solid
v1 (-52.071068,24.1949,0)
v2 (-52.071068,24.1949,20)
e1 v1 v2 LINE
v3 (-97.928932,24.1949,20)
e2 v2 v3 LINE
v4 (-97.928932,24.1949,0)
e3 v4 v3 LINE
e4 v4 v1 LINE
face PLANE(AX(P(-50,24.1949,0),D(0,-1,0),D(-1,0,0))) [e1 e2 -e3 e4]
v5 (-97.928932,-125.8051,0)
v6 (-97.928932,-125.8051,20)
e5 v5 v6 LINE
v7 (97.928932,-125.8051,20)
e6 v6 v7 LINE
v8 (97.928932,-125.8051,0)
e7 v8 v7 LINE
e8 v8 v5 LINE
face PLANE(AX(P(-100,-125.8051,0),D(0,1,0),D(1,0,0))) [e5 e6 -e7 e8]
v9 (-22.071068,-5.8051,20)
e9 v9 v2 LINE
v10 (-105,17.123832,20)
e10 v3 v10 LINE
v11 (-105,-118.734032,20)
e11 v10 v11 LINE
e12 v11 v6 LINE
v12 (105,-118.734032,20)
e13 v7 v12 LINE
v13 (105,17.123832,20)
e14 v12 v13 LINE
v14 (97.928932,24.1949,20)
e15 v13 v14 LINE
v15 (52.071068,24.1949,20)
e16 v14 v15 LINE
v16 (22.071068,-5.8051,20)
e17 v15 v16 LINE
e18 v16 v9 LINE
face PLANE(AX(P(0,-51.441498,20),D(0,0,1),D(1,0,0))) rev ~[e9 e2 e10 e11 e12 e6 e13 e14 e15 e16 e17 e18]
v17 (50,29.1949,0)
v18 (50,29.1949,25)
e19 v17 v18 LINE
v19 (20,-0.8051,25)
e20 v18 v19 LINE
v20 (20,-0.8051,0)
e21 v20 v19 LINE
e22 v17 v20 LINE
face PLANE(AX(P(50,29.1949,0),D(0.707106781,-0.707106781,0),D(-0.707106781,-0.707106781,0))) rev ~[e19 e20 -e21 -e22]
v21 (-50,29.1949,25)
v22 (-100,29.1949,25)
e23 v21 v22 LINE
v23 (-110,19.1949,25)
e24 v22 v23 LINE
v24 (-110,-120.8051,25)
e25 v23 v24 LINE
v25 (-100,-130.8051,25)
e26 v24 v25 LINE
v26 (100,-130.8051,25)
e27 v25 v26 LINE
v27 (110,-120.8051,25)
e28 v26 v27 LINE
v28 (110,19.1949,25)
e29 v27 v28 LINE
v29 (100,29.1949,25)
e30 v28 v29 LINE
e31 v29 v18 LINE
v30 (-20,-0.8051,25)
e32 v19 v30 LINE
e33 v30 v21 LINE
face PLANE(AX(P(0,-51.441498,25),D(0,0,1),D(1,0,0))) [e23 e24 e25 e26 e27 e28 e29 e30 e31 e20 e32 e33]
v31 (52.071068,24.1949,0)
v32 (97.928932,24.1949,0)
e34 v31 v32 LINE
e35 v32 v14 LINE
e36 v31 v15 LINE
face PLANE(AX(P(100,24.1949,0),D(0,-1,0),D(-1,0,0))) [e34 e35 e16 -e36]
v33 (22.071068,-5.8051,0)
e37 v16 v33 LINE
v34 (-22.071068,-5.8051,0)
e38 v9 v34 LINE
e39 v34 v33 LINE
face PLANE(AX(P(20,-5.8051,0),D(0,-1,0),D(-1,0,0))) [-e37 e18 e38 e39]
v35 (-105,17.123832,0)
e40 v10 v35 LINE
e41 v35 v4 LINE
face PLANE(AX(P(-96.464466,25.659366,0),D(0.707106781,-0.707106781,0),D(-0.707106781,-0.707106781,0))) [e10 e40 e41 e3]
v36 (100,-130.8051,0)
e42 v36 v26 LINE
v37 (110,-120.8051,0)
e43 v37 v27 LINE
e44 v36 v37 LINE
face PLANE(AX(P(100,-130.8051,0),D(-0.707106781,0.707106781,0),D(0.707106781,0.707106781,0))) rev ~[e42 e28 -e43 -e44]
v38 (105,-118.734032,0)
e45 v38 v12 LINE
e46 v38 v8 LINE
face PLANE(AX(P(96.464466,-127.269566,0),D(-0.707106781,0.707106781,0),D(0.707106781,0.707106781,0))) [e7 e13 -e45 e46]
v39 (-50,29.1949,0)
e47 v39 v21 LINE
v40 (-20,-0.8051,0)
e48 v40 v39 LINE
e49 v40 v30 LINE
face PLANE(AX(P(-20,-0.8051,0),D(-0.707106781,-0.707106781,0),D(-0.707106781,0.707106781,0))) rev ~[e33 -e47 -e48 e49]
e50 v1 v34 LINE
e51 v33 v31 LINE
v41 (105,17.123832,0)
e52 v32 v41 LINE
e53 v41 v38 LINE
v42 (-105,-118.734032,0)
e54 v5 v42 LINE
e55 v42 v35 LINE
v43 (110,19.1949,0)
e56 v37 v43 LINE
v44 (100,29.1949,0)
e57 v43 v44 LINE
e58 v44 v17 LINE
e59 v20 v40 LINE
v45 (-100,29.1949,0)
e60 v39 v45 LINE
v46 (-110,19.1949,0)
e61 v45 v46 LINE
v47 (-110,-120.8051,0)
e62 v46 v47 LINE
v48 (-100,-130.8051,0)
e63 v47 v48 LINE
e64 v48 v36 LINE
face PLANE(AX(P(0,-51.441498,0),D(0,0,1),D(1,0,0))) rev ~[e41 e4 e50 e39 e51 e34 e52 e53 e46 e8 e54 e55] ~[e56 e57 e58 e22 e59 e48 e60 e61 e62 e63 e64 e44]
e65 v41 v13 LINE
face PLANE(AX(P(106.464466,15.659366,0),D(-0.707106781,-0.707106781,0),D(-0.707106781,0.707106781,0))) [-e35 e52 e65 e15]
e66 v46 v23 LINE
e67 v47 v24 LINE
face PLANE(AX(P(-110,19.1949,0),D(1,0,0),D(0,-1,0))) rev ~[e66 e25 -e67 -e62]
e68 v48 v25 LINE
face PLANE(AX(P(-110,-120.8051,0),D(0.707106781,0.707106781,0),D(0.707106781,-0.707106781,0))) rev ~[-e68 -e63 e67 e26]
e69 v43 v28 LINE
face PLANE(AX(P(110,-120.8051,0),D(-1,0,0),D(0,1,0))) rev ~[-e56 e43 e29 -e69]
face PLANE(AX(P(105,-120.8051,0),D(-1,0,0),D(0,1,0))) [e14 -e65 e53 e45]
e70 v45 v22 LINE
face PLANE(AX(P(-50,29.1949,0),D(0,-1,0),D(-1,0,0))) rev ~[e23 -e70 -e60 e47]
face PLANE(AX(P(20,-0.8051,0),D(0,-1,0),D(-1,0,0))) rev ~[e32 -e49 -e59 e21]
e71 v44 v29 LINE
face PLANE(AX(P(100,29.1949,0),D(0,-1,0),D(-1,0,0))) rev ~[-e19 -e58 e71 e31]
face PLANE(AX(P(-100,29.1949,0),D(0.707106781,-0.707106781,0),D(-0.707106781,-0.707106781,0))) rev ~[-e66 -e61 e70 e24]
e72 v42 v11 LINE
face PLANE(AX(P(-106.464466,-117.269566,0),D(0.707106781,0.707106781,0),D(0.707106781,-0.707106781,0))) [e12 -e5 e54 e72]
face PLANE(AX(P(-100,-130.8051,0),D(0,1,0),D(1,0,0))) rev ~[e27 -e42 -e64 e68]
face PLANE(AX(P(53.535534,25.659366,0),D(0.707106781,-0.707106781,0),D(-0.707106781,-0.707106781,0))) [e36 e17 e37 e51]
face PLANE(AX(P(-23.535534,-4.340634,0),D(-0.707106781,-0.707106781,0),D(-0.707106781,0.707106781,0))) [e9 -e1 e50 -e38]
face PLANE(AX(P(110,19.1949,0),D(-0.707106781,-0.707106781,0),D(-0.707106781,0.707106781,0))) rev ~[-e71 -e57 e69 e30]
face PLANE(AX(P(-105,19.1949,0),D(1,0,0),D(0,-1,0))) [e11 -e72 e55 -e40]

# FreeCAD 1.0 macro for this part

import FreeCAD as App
import Part
import Sketcher


def faces_at(feature, points):
    """Names of the faces that lie closest to the given points."""
    faces = feature.Shape.Faces
    near = lambda p: min(range(len(faces)), key=lambda i: faces[i].distToShape(Part.Vertex(*p))[0])
    return sorted({f"Face{near(p) + 1}" for p in points})

doc = App.newDocument("Part")
body = doc.addObject("PartDesign::Body", "Body")

# Sketch on XY plane
sketch1 = body.newObject("Sketcher::SketchObject", "Sketch")
sketch1.AttachmentSupport = (doc.getObject("XY_Plane"), [""])
sketch1.MapMode = "FlatFace"
sketch1.addGeometry(Part.LineSegment(App.Vector(-100, 29, 0), App.Vector(-110, 19, 0)), False)
sketch1.addGeometry(Part.LineSegment(App.Vector(-110, 19, 0), App.Vector(-110, -121, 0)), False)
sketch1.addGeometry(Part.LineSegment(App.Vector(-110, -121, 0), App.Vector(-100, -131, 0)), False)
sketch1.addGeometry(Part.LineSegment(App.Vector(-100, -131, 0), App.Vector(100, -131, 0)), False)
sketch1.addGeometry(Part.LineSegment(App.Vector(100, -131, 0), App.Vector(110, -121, 0)), False)
sketch1.addGeometry(Part.LineSegment(App.Vector(110, -121, 0), App.Vector(110, 19, 0)), False)
sketch1.addGeometry(Part.LineSegment(App.Vector(110, 19, 0), App.Vector(100, 29, 0)), False)
sketch1.addGeometry(Part.LineSegment(App.Vector(100, 29, 0), App.Vector(50, 29, 0)), False)
sketch1.addGeometry(Part.LineSegment(App.Vector(50, 29, 0), App.Vector(20, -1, 0)), False)
sketch1.addGeometry(Part.LineSegment(App.Vector(20, -1, 0), App.Vector(-20, -1, 0)), False)
sketch1.addGeometry(Part.LineSegment(App.Vector(-20, -1, 0), App.Vector(-50, 29, 0)), False)
sketch1.addGeometry(Part.LineSegment(App.Vector(-50, 29, 0), App.Vector(-100, 29, 0)), False)
sketch1.addConstraint(Sketcher.Constraint("Coincident", 0, 2, 1, 1))
sketch1.addConstraint(Sketcher.Constraint("Coincident", 1, 2, 2, 1))
sketch1.addConstraint(Sketcher.Constraint("Coincident", 2, 2, 3, 1))
sketch1.addConstraint(Sketcher.Constraint("Coincident", 3, 2, 4, 1))
sketch1.addConstraint(Sketcher.Constraint("Coincident", 4, 2, 5, 1))
sketch1.addConstraint(Sketcher.Constraint("Coincident", 5, 2, 6, 1))
sketch1.addConstraint(Sketcher.Constraint("Coincident", 6, 2, 7, 1))
sketch1.addConstraint(Sketcher.Constraint("Coincident", 7, 2, 8, 1))
sketch1.addConstraint(Sketcher.Constraint("Coincident", 8, 2, 9, 1))
sketch1.addConstraint(Sketcher.Constraint("Coincident", 9, 2, 10, 1))
sketch1.addConstraint(Sketcher.Constraint("Coincident", 10, 2, 11, 1))
sketch1.addConstraint(Sketcher.Constraint("Coincident", 11, 2, 0, 1))
sketch1.addConstraint(Sketcher.Constraint("Vertical", 1))
sketch1.addConstraint(Sketcher.Constraint("Horizontal", 3))
sketch1.addConstraint(Sketcher.Constraint("Vertical", 5))
sketch1.addConstraint(Sketcher.Constraint("Horizontal", 7))
sketch1.addConstraint(Sketcher.Constraint("Horizontal", 9))
sketch1.addConstraint(Sketcher.Constraint("Horizontal", 11))
sketch1.addConstraint(Sketcher.Constraint("Symmetric", 1, 2, 4, 2, -2))
sketch1.addConstraint(Sketcher.Constraint("Symmetric", 7, 2, 10, 2, -2))
sketch1.addConstraint(Sketcher.Constraint("Perpendicular", 0, 2))
sketch1.addConstraint(Sketcher.Constraint("Perpendicular", 2, 4))
sketch1.addConstraint(Sketcher.Constraint("Perpendicular", 4, 6))
sketch1.addConstraint(Sketcher.Constraint("Perpendicular", 6, 8))
sketch1.addConstraint(Sketcher.Constraint("Perpendicular", 8, 10))
sketch1.addConstraint(Sketcher.Constraint("Horizontal", 0, 2, 5, 2))
sketch1.addConstraint(Sketcher.Constraint("Vertical", 3, 2, 6, 2))
sketch1.addConstraint(Sketcher.Constraint("Vertical", 2, 2, 11, 2))
sketch1.addConstraint(Sketcher.Constraint("DistanceX", 7, 2, 7, 1, 50.0))
sketch1.addConstraint(Sketcher.Constraint("DistanceX", -1, 1, 7, 2, 50.0))
sketch1.addConstraint(Sketcher.Constraint("DistanceX", 9, 2, 9, 1, 40.0))
sketch1.addConstraint(Sketcher.Constraint("DistanceY", 1, 2, 1, 1, 140.0))
sketch1.addConstraint(Sketcher.Constraint("DistanceX", 0, 2, -1, 1, 110.0))
sketch1.addConstraint(Sketcher.Constraint("DistanceY", -1, 1, 0, 2, 19.195))
pad1 = body.newObject("PartDesign::Pad", "Pad")
pad1.Profile = sketch1
pad1.Length = 25
doc.recompute()

thickness = body.newObject("PartDesign::Thickness", "Thickness")
thickness.Base = (pad1, faces_at(pad1, [(-75.533, -102.538, 0)]))
thickness.Value = 5
thickness.Reversed = True
thickness.Join = "Intersection"

doc.recompute()
